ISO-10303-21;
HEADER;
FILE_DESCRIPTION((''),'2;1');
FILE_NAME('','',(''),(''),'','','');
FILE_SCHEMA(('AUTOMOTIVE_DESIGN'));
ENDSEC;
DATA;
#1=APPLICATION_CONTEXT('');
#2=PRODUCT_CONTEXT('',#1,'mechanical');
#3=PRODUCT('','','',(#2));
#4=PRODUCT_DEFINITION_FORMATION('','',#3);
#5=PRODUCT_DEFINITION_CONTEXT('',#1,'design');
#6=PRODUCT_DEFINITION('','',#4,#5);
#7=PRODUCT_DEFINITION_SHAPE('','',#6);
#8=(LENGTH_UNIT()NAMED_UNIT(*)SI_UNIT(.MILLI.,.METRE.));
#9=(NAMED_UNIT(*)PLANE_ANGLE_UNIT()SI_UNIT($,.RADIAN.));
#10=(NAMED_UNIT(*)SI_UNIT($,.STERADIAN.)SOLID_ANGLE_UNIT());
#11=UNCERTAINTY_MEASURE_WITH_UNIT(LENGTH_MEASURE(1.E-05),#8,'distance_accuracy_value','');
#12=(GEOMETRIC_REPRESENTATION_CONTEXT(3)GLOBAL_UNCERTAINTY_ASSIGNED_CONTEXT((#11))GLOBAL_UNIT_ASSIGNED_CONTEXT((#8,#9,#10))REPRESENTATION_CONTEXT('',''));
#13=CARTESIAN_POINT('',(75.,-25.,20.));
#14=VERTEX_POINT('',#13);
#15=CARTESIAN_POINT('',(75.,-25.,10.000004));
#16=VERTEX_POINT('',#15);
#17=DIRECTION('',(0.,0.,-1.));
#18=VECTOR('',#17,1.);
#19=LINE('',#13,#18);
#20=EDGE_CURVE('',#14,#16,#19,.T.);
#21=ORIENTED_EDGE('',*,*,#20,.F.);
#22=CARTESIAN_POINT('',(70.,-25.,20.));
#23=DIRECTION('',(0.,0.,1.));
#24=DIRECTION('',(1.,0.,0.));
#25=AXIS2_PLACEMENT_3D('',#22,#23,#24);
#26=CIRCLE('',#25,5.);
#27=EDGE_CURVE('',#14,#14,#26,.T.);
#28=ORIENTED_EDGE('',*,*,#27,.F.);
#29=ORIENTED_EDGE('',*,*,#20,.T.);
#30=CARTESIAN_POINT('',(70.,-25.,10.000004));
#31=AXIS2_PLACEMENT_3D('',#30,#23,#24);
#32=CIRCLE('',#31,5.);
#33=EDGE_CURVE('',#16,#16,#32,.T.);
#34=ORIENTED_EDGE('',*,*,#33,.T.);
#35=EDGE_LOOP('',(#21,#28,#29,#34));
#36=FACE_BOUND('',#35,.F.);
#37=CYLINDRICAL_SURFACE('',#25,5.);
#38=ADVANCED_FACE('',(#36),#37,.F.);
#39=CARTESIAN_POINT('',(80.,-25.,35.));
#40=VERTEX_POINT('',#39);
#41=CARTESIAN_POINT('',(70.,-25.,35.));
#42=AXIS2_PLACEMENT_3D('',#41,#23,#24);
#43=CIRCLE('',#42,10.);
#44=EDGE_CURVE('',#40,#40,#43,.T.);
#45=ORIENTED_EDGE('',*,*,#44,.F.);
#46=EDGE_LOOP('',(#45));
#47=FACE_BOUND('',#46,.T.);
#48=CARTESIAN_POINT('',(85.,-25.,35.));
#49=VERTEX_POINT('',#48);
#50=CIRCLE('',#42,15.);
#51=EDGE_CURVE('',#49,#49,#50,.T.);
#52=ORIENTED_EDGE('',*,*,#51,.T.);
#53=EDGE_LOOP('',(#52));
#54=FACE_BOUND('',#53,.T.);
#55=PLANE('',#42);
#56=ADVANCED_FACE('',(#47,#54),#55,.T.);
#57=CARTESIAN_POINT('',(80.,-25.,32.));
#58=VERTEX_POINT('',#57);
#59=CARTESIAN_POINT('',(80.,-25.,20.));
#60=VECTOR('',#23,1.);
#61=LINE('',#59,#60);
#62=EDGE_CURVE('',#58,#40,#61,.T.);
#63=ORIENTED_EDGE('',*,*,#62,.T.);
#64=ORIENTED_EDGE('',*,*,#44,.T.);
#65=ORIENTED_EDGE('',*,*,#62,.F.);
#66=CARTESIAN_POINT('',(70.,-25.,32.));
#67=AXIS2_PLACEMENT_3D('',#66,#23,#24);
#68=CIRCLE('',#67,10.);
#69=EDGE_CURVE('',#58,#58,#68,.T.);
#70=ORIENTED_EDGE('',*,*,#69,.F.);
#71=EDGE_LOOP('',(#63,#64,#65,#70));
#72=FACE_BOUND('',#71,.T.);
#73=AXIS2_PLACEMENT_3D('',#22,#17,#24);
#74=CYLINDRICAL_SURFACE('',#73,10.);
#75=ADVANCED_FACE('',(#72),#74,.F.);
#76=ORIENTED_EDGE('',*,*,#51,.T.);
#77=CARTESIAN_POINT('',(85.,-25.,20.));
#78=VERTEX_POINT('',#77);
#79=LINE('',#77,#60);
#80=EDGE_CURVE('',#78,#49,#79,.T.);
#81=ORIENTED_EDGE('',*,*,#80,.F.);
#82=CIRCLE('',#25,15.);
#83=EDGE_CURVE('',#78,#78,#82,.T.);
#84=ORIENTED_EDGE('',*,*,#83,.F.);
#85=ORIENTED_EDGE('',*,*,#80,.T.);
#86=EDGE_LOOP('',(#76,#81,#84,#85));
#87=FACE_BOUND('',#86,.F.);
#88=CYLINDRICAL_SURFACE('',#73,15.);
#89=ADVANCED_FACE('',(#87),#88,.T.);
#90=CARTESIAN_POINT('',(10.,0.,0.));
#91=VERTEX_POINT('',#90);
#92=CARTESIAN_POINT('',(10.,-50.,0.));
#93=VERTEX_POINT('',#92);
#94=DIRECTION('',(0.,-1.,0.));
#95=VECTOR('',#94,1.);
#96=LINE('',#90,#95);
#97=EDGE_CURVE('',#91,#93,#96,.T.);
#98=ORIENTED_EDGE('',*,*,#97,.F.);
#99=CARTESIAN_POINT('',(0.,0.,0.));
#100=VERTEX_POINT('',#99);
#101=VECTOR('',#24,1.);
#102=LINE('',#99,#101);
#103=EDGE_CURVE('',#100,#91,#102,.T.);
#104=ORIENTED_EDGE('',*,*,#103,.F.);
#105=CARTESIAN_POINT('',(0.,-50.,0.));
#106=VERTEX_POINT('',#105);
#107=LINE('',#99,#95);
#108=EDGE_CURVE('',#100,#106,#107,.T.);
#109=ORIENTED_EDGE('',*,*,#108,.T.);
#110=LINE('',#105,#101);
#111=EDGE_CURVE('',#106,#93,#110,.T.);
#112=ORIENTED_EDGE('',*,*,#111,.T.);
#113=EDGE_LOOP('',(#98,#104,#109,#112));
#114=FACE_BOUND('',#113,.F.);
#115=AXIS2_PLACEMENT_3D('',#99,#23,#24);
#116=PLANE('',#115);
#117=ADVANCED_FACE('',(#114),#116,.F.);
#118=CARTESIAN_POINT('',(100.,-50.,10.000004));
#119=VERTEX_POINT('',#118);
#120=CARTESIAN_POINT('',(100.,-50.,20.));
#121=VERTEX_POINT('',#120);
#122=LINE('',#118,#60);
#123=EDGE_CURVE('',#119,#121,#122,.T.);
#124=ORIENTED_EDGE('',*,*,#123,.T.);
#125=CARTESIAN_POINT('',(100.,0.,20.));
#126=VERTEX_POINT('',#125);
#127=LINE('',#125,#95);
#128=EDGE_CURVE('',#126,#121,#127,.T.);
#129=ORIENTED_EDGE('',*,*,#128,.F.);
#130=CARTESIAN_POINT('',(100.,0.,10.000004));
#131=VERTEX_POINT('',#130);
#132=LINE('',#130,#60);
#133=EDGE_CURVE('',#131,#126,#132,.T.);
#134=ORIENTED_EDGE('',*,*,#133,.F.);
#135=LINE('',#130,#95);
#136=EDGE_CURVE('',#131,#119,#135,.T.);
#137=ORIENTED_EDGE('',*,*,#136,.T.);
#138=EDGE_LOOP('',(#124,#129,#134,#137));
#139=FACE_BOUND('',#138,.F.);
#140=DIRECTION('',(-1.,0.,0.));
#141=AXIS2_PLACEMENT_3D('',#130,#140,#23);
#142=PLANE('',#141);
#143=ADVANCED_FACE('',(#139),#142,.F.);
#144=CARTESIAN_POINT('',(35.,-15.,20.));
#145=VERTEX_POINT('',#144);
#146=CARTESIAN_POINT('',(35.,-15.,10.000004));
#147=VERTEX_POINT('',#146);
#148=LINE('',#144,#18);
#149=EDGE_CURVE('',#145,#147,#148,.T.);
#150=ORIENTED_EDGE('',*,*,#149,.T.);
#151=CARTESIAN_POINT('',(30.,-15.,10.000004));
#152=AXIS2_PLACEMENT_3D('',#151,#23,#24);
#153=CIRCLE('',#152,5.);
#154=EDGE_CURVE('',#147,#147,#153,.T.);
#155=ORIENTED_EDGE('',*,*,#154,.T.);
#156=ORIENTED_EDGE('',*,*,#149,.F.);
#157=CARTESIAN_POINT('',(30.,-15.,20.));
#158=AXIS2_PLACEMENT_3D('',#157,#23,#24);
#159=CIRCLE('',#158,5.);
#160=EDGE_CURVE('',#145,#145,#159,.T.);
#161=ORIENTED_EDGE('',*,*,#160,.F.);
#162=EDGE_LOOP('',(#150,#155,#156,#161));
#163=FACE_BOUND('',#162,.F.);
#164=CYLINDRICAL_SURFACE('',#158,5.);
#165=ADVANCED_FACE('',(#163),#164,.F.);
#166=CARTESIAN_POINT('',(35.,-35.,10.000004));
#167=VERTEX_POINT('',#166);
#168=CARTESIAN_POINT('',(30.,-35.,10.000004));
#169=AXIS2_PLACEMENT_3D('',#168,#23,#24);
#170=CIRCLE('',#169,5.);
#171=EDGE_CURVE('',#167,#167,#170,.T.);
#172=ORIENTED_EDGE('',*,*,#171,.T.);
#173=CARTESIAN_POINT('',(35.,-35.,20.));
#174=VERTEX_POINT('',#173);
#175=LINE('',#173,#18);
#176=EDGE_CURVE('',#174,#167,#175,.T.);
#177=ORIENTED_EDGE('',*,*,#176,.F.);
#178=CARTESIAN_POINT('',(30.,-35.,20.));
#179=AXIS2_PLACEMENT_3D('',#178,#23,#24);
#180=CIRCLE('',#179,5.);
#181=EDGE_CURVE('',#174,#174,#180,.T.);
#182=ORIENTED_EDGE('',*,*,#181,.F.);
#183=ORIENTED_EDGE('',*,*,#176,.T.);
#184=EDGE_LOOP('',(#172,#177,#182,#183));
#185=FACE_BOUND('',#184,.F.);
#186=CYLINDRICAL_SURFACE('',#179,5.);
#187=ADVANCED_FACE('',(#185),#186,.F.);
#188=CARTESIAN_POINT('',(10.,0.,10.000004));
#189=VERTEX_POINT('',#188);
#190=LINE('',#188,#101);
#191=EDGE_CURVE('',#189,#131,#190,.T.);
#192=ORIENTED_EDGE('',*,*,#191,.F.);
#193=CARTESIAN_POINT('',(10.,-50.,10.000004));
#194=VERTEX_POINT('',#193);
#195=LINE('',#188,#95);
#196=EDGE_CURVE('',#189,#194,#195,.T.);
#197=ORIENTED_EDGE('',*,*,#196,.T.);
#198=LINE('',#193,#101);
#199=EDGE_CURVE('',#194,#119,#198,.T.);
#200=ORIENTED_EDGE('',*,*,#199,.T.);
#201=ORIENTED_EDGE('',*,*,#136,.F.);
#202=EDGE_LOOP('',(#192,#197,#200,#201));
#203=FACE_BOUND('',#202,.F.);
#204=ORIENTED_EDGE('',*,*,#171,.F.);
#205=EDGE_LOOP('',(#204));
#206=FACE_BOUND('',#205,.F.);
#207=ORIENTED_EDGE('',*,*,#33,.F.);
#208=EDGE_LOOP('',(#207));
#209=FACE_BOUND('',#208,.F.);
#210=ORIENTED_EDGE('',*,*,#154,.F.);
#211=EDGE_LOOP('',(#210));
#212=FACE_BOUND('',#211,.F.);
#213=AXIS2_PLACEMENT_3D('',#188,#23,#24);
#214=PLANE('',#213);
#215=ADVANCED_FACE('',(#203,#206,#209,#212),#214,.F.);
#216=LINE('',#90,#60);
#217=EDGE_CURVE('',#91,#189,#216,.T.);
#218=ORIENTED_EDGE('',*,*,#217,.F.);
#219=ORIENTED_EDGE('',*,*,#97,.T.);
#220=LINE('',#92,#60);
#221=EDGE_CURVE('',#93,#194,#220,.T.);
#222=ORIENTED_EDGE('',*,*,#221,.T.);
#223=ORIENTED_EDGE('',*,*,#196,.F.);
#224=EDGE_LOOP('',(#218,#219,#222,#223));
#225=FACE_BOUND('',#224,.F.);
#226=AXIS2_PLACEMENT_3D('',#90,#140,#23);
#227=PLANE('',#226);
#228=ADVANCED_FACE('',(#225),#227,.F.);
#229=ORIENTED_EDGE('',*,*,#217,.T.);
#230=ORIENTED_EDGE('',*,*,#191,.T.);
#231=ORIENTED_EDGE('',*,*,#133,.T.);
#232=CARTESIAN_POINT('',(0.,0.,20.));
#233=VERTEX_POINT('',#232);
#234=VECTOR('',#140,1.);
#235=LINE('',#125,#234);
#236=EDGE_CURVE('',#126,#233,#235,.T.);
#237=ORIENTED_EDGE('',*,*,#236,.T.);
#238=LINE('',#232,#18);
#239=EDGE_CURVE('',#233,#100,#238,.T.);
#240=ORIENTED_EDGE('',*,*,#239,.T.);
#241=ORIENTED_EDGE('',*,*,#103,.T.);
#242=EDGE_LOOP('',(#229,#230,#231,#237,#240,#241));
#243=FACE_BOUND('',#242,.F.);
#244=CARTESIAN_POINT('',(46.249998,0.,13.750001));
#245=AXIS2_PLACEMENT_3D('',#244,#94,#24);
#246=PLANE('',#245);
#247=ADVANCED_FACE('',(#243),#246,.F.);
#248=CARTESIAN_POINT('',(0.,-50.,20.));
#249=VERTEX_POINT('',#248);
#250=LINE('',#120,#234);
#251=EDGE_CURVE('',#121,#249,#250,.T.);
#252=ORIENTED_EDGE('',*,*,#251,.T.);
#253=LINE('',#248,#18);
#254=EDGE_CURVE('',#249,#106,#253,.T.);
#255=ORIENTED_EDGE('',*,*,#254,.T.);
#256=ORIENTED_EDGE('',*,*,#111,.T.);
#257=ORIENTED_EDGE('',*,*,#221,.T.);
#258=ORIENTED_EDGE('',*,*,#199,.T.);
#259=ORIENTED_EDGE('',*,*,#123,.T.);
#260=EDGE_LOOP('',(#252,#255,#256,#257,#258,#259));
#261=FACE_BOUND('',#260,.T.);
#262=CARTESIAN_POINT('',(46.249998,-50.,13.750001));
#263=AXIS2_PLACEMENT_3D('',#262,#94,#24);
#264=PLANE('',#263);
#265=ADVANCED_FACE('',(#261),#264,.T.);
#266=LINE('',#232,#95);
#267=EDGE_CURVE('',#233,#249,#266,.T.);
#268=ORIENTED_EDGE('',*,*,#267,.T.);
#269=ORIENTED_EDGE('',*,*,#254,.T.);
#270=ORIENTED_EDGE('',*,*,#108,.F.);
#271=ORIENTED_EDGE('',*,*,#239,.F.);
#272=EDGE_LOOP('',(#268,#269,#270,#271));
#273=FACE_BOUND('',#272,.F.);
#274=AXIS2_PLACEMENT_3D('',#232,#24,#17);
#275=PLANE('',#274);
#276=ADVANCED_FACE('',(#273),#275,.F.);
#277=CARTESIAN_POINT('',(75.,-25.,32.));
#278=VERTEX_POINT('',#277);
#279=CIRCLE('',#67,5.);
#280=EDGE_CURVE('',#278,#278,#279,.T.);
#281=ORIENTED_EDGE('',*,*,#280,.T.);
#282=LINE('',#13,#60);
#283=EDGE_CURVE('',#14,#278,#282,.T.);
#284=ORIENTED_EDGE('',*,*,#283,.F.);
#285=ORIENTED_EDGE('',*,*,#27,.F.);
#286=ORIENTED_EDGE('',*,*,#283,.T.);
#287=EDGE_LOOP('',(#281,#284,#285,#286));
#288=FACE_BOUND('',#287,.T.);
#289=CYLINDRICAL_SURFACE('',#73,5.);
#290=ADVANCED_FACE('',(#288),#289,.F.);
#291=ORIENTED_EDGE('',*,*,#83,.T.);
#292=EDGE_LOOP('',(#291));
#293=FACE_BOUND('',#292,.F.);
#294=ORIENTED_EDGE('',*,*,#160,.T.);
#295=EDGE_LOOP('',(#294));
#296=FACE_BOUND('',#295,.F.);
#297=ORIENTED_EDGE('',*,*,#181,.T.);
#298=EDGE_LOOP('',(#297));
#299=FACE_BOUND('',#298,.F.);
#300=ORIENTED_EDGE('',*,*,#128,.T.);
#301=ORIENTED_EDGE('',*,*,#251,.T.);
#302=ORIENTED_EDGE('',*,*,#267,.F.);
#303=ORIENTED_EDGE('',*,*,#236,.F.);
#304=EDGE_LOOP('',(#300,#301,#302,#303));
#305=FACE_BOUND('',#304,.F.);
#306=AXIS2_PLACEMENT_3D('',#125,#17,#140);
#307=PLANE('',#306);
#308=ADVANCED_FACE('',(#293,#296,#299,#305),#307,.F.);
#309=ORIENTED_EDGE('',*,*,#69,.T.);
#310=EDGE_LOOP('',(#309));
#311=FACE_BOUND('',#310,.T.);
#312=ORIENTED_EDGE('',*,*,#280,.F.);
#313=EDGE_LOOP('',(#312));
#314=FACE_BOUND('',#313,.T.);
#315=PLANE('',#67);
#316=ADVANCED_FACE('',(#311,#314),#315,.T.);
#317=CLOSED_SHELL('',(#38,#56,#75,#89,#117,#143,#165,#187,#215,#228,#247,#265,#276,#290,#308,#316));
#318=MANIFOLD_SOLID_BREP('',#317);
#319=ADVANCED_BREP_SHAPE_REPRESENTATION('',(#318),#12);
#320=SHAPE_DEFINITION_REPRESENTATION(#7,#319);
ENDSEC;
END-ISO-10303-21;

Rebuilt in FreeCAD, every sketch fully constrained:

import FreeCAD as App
import Part
import Sketcher

V = App.Vector

doc = App.newDocument("Part")
body = doc.addObject("PartDesign::Body", "Body")

sketch1 = body.newObject("Sketcher::SketchObject", "Sketch")
sketch1.AttachmentSupport = (doc.getObject("XZ_Plane"), [""])
sketch1.MapMode = "FlatFace"
sketch1.addGeometry([
    Part.LineSegment(V(0, 20, 0), V(0, 0, 0)),
    Part.LineSegment(V(0, 0, 0), V(10, 0, 0)),
    Part.LineSegment(V(10, 0, 0), V(10, 10, 0)),
    Part.LineSegment(V(10, 10, 0), V(100, 10, 0)),
    Part.LineSegment(V(100, 10, 0), V(100, 20, 0)),
    Part.LineSegment(V(100, 20, 0), V(0, 20, 0)),
], False)
sketch1.addConstraint([
    Sketcher.Constraint("Coincident", 0, 2, 1, 1),
    Sketcher.Constraint("Coincident", 1, 2, 2, 1),
    Sketcher.Constraint("Coincident", 2, 2, 3, 1),
    Sketcher.Constraint("Coincident", 3, 2, 4, 1),
    Sketcher.Constraint("Coincident", 4, 2, 5, 1),
    Sketcher.Constraint("Coincident", 5, 2, 0, 1),
    Sketcher.Constraint("Vertical", 0),
    Sketcher.Constraint("Horizontal", 1),
    Sketcher.Constraint("Vertical", 2),
    Sketcher.Constraint("Horizontal", 3),
    Sketcher.Constraint("Vertical", 4),
    Sketcher.Constraint("Horizontal", 5),
    Sketcher.Constraint("Coincident", 0, 2, -1, 1),
    Sketcher.Constraint("DistanceX", 1, 1, 1, 2, 10.0),
    Sketcher.Constraint("DistanceX", 3, 1, 3, 2, 90.0),
    Sketcher.Constraint("DistanceY", 0, 2, 0, 1, 20.0),
    Sketcher.Constraint("DistanceY", 2, 1, 2, 2, 10.000004),
])
pad1 = body.newObject("PartDesign::Pad", "Pad")
pad1.Profile = sketch1
pad1.Length = 50

sketch2 = body.newObject("Sketcher::SketchObject", "Sketch001")
sketch2.AttachmentSupport = (doc.getObject("XY_Plane"), [""])
sketch2.MapMode = "FlatFace"
sketch2.AttachmentOffset = App.Placement(V(0, 0, 20), App.Rotation())
sketch2.addGeometry([
    Part.Circle(V(70, -25, 0), V(0, 0, 1), 15),
    Part.Circle(V(70, -25, 0), V(0, 0, 1), 10),
], False)
sketch2.addConstraint([
    Sketcher.Constraint("Coincident", 1, 3, 0, 3),
    Sketcher.Constraint("Diameter", 0, 30.0),
    Sketcher.Constraint("Diameter", 1, 20.0),
    Sketcher.Constraint("DistanceX", -1, 1, 0, 3, 70.0),
    Sketcher.Constraint("DistanceY", 0, 3, -1, 1, 25.0),
])
pad2 = body.newObject("PartDesign::Pad", "Pad001")
pad2.Profile = sketch2
pad2.Length = 15

sketch3 = body.newObject("Sketcher::SketchObject", "Sketch002")
sketch3.AttachmentSupport = (doc.getObject("XY_Plane"), [""])
sketch3.MapMode = "FlatFace"
sketch3.AttachmentOffset = App.Placement(V(0, 0, 20), App.Rotation())
sketch3.addGeometry([
    Part.Circle(V(70, -25, 0), V(0, 0, 1), 10),
    Part.Circle(V(70, -25, 0), V(0, 0, 1), 5),
], False)
sketch3.addConstraint([
    Sketcher.Constraint("Coincident", 1, 3, 0, 3),
    Sketcher.Constraint("Diameter", 0, 20.0),
    Sketcher.Constraint("Diameter", 1, 10.0),
    Sketcher.Constraint("DistanceX", -1, 1, 0, 3, 70.0),
    Sketcher.Constraint("DistanceY", 0, 3, -1, 1, 25.0),
])
pad3 = body.newObject("PartDesign::Pad", "Pad002")
pad3.Profile = sketch3
pad3.Length = 12

sketch4 = body.newObject("Sketcher::SketchObject", "Sketch003")
sketch4.AttachmentSupport = (doc.getObject("XY_Plane"), [""])
sketch4.MapMode = "FlatFace"
sketch4.AttachmentOffset = App.Placement(V(0, 0, 20), App.Rotation())
sketch4.addGeometry([
    Part.Circle(V(70, -25, 0), V(0, 0, 1), 5),
    Part.Circle(V(30, -35, 0), V(0, 0, 1), 5),
    Part.Circle(V(30, -15, 0), V(0, 0, 1), 5),
], False)
sketch4.addConstraint([
    Sketcher.Constraint("Equal", 0, 1),
    Sketcher.Constraint("Equal", 1, 2),
    Sketcher.Constraint("Vertical", 1, 3, 2, 3),
    Sketcher.Constraint("Diameter", 0, 10.0),
    Sketcher.Constraint("DistanceX", -1, 1, 0, 3, 70.0),
    Sketcher.Constraint("DistanceY", 0, 3, -1, 1, 25.0),
    Sketcher.Constraint("DistanceX", -1, 1, 1, 3, 30.0),
    Sketcher.Constraint("DistanceY", 1, 3, -1, 1, 35.0),
    Sketcher.Constraint("DistanceY", 2, 3, -1, 1, 15.0),
])
pocket1 = body.newObject("PartDesign::Pocket", "Pocket")
pocket1.Profile = sketch4
pocket1.Length = 25

doc.recompute()
